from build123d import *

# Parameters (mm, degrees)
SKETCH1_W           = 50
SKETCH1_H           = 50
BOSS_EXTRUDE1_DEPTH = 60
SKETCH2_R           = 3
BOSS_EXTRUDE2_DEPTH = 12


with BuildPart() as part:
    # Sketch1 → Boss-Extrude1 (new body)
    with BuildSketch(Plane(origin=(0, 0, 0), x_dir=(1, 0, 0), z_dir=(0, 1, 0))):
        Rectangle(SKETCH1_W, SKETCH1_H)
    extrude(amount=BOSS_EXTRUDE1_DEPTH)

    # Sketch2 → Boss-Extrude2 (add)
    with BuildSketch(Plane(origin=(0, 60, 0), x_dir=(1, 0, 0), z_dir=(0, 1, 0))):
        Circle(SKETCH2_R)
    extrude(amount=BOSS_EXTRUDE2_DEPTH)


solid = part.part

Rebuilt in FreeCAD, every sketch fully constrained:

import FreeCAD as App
import Part
import Sketcher
Q = App.Units.Quantity

doc = App.newDocument("Part")
body = doc.addObject("PartDesign::Body", "Body")

sketch1 = doc.addObject("Sketcher::SketchObject", "Sketch")
body.addObject(sketch1)
sketch1.AttachmentSupport = (doc.XZ_Plane, [""])
sketch1.MapMode = "FlatFace"
sketch1.addGeometry(Part.LineSegment(App.Vector(-25, -25, 0), App.Vector(-25, 25, 0)), False)
sketch1.addGeometry(Part.LineSegment(App.Vector(-25, 25, 0), App.Vector(25, 25, 0)), False)
sketch1.addGeometry(Part.LineSegment(App.Vector(25, 25, 0), App.Vector(25, -25, 0)), False)
sketch1.addGeometry(Part.LineSegment(App.Vector(25, -25, 0), App.Vector(-25, -25, 0)), False)
sketch1.addConstraint(Sketcher.Constraint("Coincident", 0, 2, 1, 1))
sketch1.addConstraint(Sketcher.Constraint("Coincident", 1, 2, 2, 1))
sketch1.addConstraint(Sketcher.Constraint("Coincident", 2, 2, 3, 1))
sketch1.addConstraint(Sketcher.Constraint("Coincident", 3, 2, 0, 1))
sketch1.addConstraint(Sketcher.Constraint("Vertical", 0))
sketch1.addConstraint(Sketcher.Constraint("Horizontal", 1))
sketch1.addConstraint(Sketcher.Constraint("Vertical", 2))
sketch1.addConstraint(Sketcher.Constraint("Horizontal", 3))
sketch1.addConstraint(Sketcher.Constraint("Symmetric", 0, 2, 2, 2, -1, 1))
sketch1.addConstraint(Sketcher.Constraint("Equal", 3, 0))
sketch1.addConstraint(Sketcher.Constraint("DistanceX", 1, 1, 1, 2, Q("50 mm")))
pad1 = doc.addObject("PartDesign::Pad", "Pad")
body.addObject(pad1)
pad1.Profile = sketch1
pad1.Length = 60
pad1.Reversed = True

sketch2 = doc.addObject("Sketcher::SketchObject", "Sketch001")
body.addObject(sketch2)
sketch2.AttachmentSupport = (doc.XZ_Plane, [""])
sketch2.MapMode = "FlatFace"
sketch2.AttachmentOffset = App.Placement(App.Vector(0, 0, -60), App.Rotation())
sketch2.addGeometry(Part.Circle(App.Vector(0, 0, 0), App.Vector(0, 0, 1), 3), False)
sketch2.addConstraint(Sketcher.Constraint("Coincident", 0, 3, -1, 1))
sketch2.addConstraint(Sketcher.Constraint("Diameter", 0, Q("6 mm")))
pad2 = doc.addObject("PartDesign::Pad", "Pad001")
body.addObject(pad2)
pad2.Profile = sketch2
pad2.Length = 12
pad2.Reversed = True

doc.recompute()
